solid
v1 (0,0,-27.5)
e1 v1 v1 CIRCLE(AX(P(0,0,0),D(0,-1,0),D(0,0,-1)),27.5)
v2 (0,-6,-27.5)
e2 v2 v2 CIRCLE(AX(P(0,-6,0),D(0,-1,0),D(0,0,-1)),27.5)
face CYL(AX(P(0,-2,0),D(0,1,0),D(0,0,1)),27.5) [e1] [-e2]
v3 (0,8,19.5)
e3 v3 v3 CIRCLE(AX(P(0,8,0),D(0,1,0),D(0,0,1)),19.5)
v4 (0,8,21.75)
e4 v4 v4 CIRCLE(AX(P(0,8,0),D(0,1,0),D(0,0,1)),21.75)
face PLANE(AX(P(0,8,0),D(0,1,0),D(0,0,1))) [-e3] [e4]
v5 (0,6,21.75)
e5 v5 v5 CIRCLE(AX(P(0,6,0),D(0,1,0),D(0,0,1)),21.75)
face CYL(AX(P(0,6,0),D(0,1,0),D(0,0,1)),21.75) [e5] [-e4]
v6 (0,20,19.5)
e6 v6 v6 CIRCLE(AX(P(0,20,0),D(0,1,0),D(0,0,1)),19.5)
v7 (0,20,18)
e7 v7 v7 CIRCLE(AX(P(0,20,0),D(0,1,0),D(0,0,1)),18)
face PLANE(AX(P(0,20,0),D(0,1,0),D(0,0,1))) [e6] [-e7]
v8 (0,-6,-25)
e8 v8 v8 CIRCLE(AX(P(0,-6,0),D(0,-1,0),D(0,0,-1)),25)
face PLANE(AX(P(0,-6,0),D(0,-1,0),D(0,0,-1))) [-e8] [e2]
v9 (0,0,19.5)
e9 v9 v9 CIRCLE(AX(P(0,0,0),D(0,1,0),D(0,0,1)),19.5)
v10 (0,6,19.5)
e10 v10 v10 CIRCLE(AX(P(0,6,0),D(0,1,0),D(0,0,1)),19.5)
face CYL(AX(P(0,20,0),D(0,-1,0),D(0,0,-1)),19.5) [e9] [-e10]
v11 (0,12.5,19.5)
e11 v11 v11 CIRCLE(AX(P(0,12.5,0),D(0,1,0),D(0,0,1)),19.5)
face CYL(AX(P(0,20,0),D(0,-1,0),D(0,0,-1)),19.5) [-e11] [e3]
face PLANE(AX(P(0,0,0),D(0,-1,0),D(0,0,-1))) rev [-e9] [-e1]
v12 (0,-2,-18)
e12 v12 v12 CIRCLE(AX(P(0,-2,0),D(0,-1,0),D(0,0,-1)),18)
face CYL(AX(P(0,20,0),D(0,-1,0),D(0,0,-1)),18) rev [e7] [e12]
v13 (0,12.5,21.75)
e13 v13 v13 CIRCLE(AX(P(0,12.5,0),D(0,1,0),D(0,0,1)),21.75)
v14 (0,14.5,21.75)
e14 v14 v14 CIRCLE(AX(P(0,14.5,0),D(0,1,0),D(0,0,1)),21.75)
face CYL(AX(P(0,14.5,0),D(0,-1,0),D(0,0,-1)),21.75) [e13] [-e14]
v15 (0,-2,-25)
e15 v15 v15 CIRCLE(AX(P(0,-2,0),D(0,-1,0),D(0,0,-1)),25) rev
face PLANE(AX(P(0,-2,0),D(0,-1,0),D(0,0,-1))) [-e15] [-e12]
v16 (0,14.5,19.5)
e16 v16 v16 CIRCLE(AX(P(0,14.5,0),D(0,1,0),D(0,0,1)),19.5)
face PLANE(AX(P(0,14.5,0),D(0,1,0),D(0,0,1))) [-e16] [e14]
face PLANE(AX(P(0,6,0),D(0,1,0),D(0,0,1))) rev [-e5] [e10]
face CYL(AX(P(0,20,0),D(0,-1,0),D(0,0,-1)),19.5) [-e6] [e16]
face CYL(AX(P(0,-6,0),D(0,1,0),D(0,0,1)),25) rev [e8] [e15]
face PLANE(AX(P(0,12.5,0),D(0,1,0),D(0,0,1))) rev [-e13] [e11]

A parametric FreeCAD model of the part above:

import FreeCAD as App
import Part
import Sketcher

V = App.Vector

doc = App.newDocument("Part")
body = doc.addObject("PartDesign::Body", "Body")

sketch1 = body.newObject("Sketcher::SketchObject", "Sketch")
sketch1.AttachmentSupport = (doc.getObject("XZ_Plane"), [""])
sketch1.MapMode = "FlatFace"
sketch1.addGeometry([
    Part.Circle(V(0, 0, 0), V(0, 0, 1), 19.5),
    Part.Circle(V(0, 0, 0), V(0, 0, 1), 18),
], False)
sketch1.addConstraint([
    Sketcher.Constraint("Coincident", 0, 3, -1, 1),
    Sketcher.Constraint("Coincident", 1, 3, -1, 1),
    Sketcher.Constraint("Diameter", 0, 39.0),
    Sketcher.Constraint("Diameter", 1, 36.0),
])
pad1 = body.newObject("PartDesign::Pad", "Pad")
pad1.Profile = sketch1
pad1.Length = 20
pad1.Reversed = True

sketch2 = body.newObject("Sketcher::SketchObject", "Sketch001")
sketch2.AttachmentSupport = (doc.getObject("XZ_Plane"), [""])
sketch2.MapMode = "FlatFace"
sketch2.addGeometry(Part.Circle(V(0, 0, 0), V(0, 0, 1), 27.5), False)
sketch2.addConstraint([
    Sketcher.Constraint("Coincident", 0, 3, -1, 1),
    Sketcher.Constraint("Diameter", 0, 55.0),
])
pad2 = body.newObject("PartDesign::Pad", "Pad001")
pad2.Profile = sketch2
pad2.Length = 2

sketch3 = body.newObject("Sketcher::SketchObject", "Sketch002")
sketch3.AttachmentSupport = (doc.getObject("XZ_Plane"), [""])
sketch3.MapMode = "FlatFace"
sketch3.AttachmentOffset = App.Placement(V(0, 0, -8), App.Rotation())
sketch3.addGeometry(Part.Circle(V(0, 0, 0), V(0, 0, 1), 21.75), False)
sketch3.addConstraint([
    Sketcher.Constraint("Coincident", 0, 3, -1, 1),
    Sketcher.Constraint("Diameter", 0, 43.5),
])
pad3 = body.newObject("PartDesign::Pad", "Pad002")
pad3.Profile = sketch3
pad3.Length = 2

sketch4 = body.newObject("Sketcher::SketchObject", "Sketch003")
sketch4.AttachmentSupport = (doc.getObject("XZ_Plane"), [""])
sketch4.MapMode = "FlatFace"
sketch4.AttachmentOffset = App.Placement(V(0, 0, -12.5), App.Rotation())
sketch4.addGeometry(Part.Circle(V(0, 0, 0), V(0, 0, 1), 21.75), False)
sketch4.addConstraint([
    Sketcher.Constraint("Coincident", 0, 3, -1, 1),
    Sketcher.Constraint("Diameter", 0, 43.5),
])
pad4 = body.newObject("PartDesign::Pad", "Pad003")
pad4.Profile = sketch4
pad4.Length = 2
pad4.Reversed = True

sketch5 = body.newObject("Sketcher::SketchObject", "Sketch004")
sketch5.AttachmentSupport = (doc.getObject("XZ_Plane"), [""])
sketch5.MapMode = "FlatFace"
sketch5.addGeometry(Part.Circle(V(0, 0, 0), V(0, 0, 1), 18), False)
sketch5.addConstraint([
    Sketcher.Constraint("Coincident", 0, 3, -1, 1),
    Sketcher.Constraint("Diameter", 0, 36.0),
])
pocket1 = body.newObject("PartDesign::Pocket", "Pocket")
pocket1.Profile = sketch5
pocket1.Length = 35

sketch6 = body.newObject("Sketcher::SketchObject", "Sketch005")
sketch6.AttachmentSupport = (doc.getObject("XZ_Plane"), [""])
sketch6.MapMode = "FlatFace"
sketch6.AttachmentOffset = App.Placement(V(0, 0, 2), App.Rotation())
sketch6.addGeometry([
    Part.Circle(V(0, 0, 0), V(0, 0, 1), 27.5),
    Part.Circle(V(0, 0, 0), V(0, 0, 1), 25),
], False)
sketch6.addConstraint([
    Sketcher.Constraint("Coincident", 0, 3, -1, 1),
    Sketcher.Constraint("Coincident", 1, 3, -1, 1),
    Sketcher.Constraint("Diameter", 0, 55.0),
    Sketcher.Constraint("Diameter", 1, 50.0),
])
pad5 = body.newObject("PartDesign::Pad", "Pad004")
pad5.Profile = sketch6
pad5.Length = 4

sketch7 = body.newObject("Sketcher::SketchObject", "Sketch006")
sketch7.AttachmentSupport = (doc.getObject("XZ_Plane"), [""])
sketch7.MapMode = "FlatFace"
sketch7.AttachmentOffset = App.Placement(V(0, 0, 2), App.Rotation())
sketch7.addGeometry(Part.Circle(V(0, 0, 0), V(0, 0, 1), 18), False)
sketch7.addConstraint([
    Sketcher.Constraint("Coincident", 0, 3, -1, 1),
    Sketcher.Constraint("Diameter", 0, 36.0),
])
pocket2 = body.newObject("PartDesign::Pocket", "Pocket001")
pocket2.Profile = sketch7
pocket2.Length = 23.5

doc.recompute()
